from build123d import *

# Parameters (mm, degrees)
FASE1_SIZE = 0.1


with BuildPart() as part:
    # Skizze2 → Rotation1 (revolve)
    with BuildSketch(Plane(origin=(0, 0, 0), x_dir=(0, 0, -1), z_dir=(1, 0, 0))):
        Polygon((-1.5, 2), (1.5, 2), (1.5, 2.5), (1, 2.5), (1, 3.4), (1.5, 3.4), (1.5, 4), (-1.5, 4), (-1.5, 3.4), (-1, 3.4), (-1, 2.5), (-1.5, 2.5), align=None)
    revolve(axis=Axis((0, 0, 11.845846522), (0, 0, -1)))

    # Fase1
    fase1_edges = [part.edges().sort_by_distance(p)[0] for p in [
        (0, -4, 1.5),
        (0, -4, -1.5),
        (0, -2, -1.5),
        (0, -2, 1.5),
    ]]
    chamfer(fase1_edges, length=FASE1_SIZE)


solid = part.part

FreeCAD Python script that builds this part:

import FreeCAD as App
import Part
import Sketcher

V = App.Vector
Q = App.Units.Quantity


def edges_at(feature, points):
    """Names of the edges that pass closest to the given points."""
    edges = feature.Shape.Edges
    near = lambda p: min(range(len(edges)), key=lambda i: edges[i].distToShape(Part.Vertex(*p))[0])
    return sorted({f"Edge{near(p) + 1}" for p in points})

doc = App.newDocument("Part")
params = doc.addObject("Spreadsheet::Sheet", "Params")
for row, (alias, value) in enumerate([
    ("sketch1_height", "3 mm"),
    ("sketch1_width", "0.5 mm"),
    ("sketch1_width2", "0.9 mm"),
    ("sketch1_width3", "0.6 mm"),
    ("revolution_angle", "360 deg"),
    ("chamfer_size", "0.1 mm"),
], start=1):
    params.set(f"A{row}", alias)
    params.set(f"B{row}", "=" + value)
    params.setAlias(f"B{row}", alias)

body = doc.addObject("PartDesign::Body", "Body")

# Sketch on YZ plane
sketch1 = body.newObject("Sketcher::SketchObject", "Sketch")
sketch1.AttachmentSupport = (doc.getObject("YZ_Plane"), [""])
sketch1.MapMode = "FlatFace"
sketch1.addGeometry([
    Part.LineSegment(V(2, 1.5, 0), V(2, -1.5, 0)),  # 0
    Part.LineSegment(V(2, -1.5, 0), V(2.5, -1.5, 0)),  # 1
    Part.LineSegment(V(2.5, -1.5, 0), V(2.5, -1, 0)),  # 2
    Part.LineSegment(V(2.5, -1, 0), V(3.4, -1, 0)),  # 3
    Part.LineSegment(V(3.4, -1, 0), V(3.4, -1.5, 0)),  # 4
    Part.LineSegment(V(3.4, -1.5, 0), V(4, -1.5, 0)),  # 5
    Part.LineSegment(V(4, -1.5, 0), V(4, 1.5, 0)),  # 6
    Part.LineSegment(V(4, 1.5, 0), V(3.4, 1.5, 0)),  # 7
    Part.LineSegment(V(3.4, 1.5, 0), V(3.4, 1, 0)),  # 8
    Part.LineSegment(V(3.4, 1, 0), V(2.5, 1, 0)),  # 9
    Part.LineSegment(V(2.5, 1, 0), V(2.5, 1.5, 0)),  # 10
    Part.LineSegment(V(2.5, 1.5, 0), V(2, 1.5, 0)),  # 11
], False)
sketch1.addConstraint([
    Sketcher.Constraint("Coincident", 0, 2, 1, 1),
    Sketcher.Constraint("Coincident", 1, 2, 2, 1),
    Sketcher.Constraint("Coincident", 2, 2, 3, 1),
    Sketcher.Constraint("Coincident", 3, 2, 4, 1),
    Sketcher.Constraint("Coincident", 4, 2, 5, 1),
    Sketcher.Constraint("Coincident", 5, 2, 6, 1),
    Sketcher.Constraint("Coincident", 6, 2, 7, 1),
    Sketcher.Constraint("Coincident", 7, 2, 8, 1),
    Sketcher.Constraint("Coincident", 8, 2, 9, 1),
    Sketcher.Constraint("Coincident", 9, 2, 10, 1),
    Sketcher.Constraint("Coincident", 10, 2, 11, 1),
    Sketcher.Constraint("Coincident", 11, 2, 0, 1),
    Sketcher.Constraint("Vertical", 0),
    Sketcher.Constraint("Horizontal", 1),
    Sketcher.Constraint("Vertical", 2),
    Sketcher.Constraint("Horizontal", 3),
    Sketcher.Constraint("Vertical", 4),
    Sketcher.Constraint("Horizontal", 5),
    Sketcher.Constraint("Vertical", 6),
    Sketcher.Constraint("Horizontal", 7),
    Sketcher.Constraint("Vertical", 8),
    Sketcher.Constraint("Horizontal", 9),
    Sketcher.Constraint("Vertical", 10),
    Sketcher.Constraint("Horizontal", 11),
    Sketcher.Constraint("Symmetric", 4, 2, 7, 2, -1),
    Sketcher.Constraint("Symmetric", 2, 2, 9, 2, -1),
    Sketcher.Constraint("Horizontal", 1, 2, 4, 2),
    Sketcher.Constraint("Horizontal", 7, 2, 10, 2),
    Sketcher.Constraint("Equal", 11, 2),
    Sketcher.Constraint("DistanceY", 0, 2, 0, 1, Q("3 mm")),
    Sketcher.Constraint("DistanceX", 1, 1, 1, 2, Q("0.5 mm")),
    Sketcher.Constraint("DistanceX", 3, 1, 3, 2, Q("0.9 mm")),
    Sketcher.Constraint("DistanceX", 5, 1, 5, 2, Q("0.6 mm")),
    Sketcher.Constraint("DistanceX", -1, 1, 0, 2, Q("2 mm")),
])
sketch1.setExpression("Constraints[29]", "Params.sketch1_height")
sketch1.setExpression("Constraints[30]", "Params.sketch1_width")
sketch1.setExpression("Constraints[31]", "Params.sketch1_width2")
sketch1.setExpression("Constraints[32]", "Params.sketch1_width3")
revolution = body.newObject("PartDesign::Revolution", "Revolution")
revolution.Profile = sketch1
revolution.ReferenceAxis = (sketch1, ["V_Axis"])
revolution.setExpression("Angle", "Params.revolution_angle")
doc.recompute()

chamfer = body.newObject("PartDesign::Chamfer", "Chamfer")
chamfer.Base = (revolution, edges_at(revolution, [
    (0, -4, 1.5),
    (0, -4, -1.5),
    (0, -2, -1.5),
    (0, -2, 1.5),
]))
chamfer.setExpression("Size", "Params.chamfer_size")

doc.recompute()
